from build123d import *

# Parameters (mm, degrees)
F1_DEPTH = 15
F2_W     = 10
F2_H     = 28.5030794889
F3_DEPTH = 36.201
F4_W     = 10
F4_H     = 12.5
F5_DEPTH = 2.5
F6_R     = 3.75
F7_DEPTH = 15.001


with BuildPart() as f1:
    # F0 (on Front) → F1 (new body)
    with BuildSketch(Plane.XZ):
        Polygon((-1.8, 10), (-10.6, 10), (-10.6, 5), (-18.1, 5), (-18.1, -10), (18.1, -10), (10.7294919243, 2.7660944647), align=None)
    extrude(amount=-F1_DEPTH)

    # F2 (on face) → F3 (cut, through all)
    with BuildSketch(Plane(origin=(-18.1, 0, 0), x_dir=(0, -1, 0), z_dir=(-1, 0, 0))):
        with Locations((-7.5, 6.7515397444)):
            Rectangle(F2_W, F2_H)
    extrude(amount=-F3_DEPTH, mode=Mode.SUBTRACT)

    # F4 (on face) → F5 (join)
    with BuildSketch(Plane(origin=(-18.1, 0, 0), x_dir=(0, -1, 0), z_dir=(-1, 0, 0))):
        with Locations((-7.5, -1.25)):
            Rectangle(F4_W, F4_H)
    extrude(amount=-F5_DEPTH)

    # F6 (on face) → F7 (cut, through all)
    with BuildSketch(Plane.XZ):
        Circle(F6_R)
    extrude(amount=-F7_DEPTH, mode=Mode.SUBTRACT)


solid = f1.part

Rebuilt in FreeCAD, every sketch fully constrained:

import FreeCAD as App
import Part
import Sketcher
Q = App.Units.Quantity

doc = App.newDocument("Part")
params = doc.addObject("Spreadsheet::Sheet", "Params")
for row, (alias, value) in enumerate([
    ("sketch1_height", "5 mm"),
    ("sketch1_height2", "15 mm"),
    ("sketch1_width", "8.8 mm"),
    ("sketch1_width2", "7.5 mm"),
    ("sketch1_width3", "36.2 mm"),
    ("pad1_length", "15 mm"),
    ("sketch2_width", "10 mm"),
    ("sketch3_width", "10 mm"),
    ("sketch3_height", "12.5 mm"),
    ("pad2_length", "2.5 mm"),
    ("sketch4_diameter", "7.5 mm"),
], start=1):
    params.set(f"A{row}", alias)
    params.set(f"B{row}", "=" + value)
    params.setAlias(f"B{row}", alias)

body = doc.addObject("PartDesign::Body", "Body")

# Sketch on XZ plane
sketch1 = body.newObject("Sketcher::SketchObject", "Sketch")
sketch1.AttachmentSupport = (doc.getObject("XZ_Plane"), [""])
sketch1.MapMode = "FlatFace"
sketch1.addGeometry(Part.LineSegment(App.Vector(-2, 10, 0), App.Vector(-11, 10, 0)), False)
sketch1.addGeometry(Part.LineSegment(App.Vector(-11, 10, 0), App.Vector(-11, 5, 0)), False)
sketch1.addGeometry(Part.LineSegment(App.Vector(-11, 5, 0), App.Vector(-18, 5, 0)), False)
sketch1.addGeometry(Part.LineSegment(App.Vector(-18, 5, 0), App.Vector(-18, -10, 0)), False)
sketch1.addGeometry(Part.LineSegment(App.Vector(-18, -10, 0), App.Vector(18, -10, 0)), False)
sketch1.addGeometry(Part.LineSegment(App.Vector(18, -10, 0), App.Vector(11, 3, 0)), False)
sketch1.addGeometry(Part.LineSegment(App.Vector(11, 3, 0), App.Vector(-2, 10, 0)), False)
sketch1.addConstraint(Sketcher.Constraint("Coincident", 0, 2, 1, 1))
sketch1.addConstraint(Sketcher.Constraint("Coincident", 1, 2, 2, 1))
sketch1.addConstraint(Sketcher.Constraint("Coincident", 2, 2, 3, 1))
sketch1.addConstraint(Sketcher.Constraint("Coincident", 3, 2, 4, 1))
sketch1.addConstraint(Sketcher.Constraint("Coincident", 4, 2, 5, 1))
sketch1.addConstraint(Sketcher.Constraint("Coincident", 5, 2, 6, 1))
sketch1.addConstraint(Sketcher.Constraint("Coincident", 6, 2, 0, 1))
sketch1.addConstraint(Sketcher.Constraint("Horizontal", 0))
sketch1.addConstraint(Sketcher.Constraint("Vertical", 1))
sketch1.addConstraint(Sketcher.Constraint("Horizontal", 2))
sketch1.addConstraint(Sketcher.Constraint("Vertical", 3))
sketch1.addConstraint(Sketcher.Constraint("Horizontal", 4))
sketch1.addConstraint(Sketcher.Constraint("DistanceY", 1, 2, 1, 1, Q("5 mm")))
sketch1.addConstraint(Sketcher.Constraint("DistanceY", 3, 2, 3, 1, Q("15 mm")))
sketch1.addConstraint(Sketcher.Constraint("Angle", 5, Q("120 deg")))
sketch1.addConstraint(Sketcher.Constraint("Angle", 6, Q("150 deg")))
sketch1.addConstraint(Sketcher.Constraint("DistanceX", 0, 2, 0, 1, Q("8.8 mm")))
sketch1.addConstraint(Sketcher.Constraint("DistanceX", 2, 2, 2, 1, Q("7.5 mm")))
sketch1.addConstraint(Sketcher.Constraint("DistanceX", 4, 1, 4, 2, Q("36.2 mm")))
sketch1.addConstraint(Sketcher.Constraint("DistanceY", -1, 1, 0, 2, Q("10 mm")))
sketch1.addConstraint(Sketcher.Constraint("DistanceX", 0, 2, -1, 1, Q("10.6 mm")))
sketch1.setExpression("Constraints[12]", "Params.sketch1_height")
sketch1.setExpression("Constraints[13]", "Params.sketch1_height2")
sketch1.setExpression("Constraints[16]", "Params.sketch1_width")
sketch1.setExpression("Constraints[17]", "Params.sketch1_width2")
sketch1.setExpression("Constraints[18]", "Params.sketch1_width3")
pad1 = body.newObject("PartDesign::Pad", "Pad")
pad1.Profile = sketch1
pad1.setExpression("Length", "Params.pad1_length")
pad1.Reversed = True

# Sketch on YZ plane
sketch2 = body.newObject("Sketcher::SketchObject", "Sketch001")
sketch2.AttachmentSupport = (doc.getObject("YZ_Plane"), [""])
sketch2.MapMode = "FlatFace"
sketch2.AttachmentOffset = App.Placement(App.Vector(0, 0, -18.1), App.Rotation())
sketch2.addGeometry(Part.LineSegment(App.Vector(12, 21, 0), App.Vector(12, -8, 0)), False)
sketch2.addGeometry(Part.LineSegment(App.Vector(12, -8, 0), App.Vector(2, -8, 0)), False)
sketch2.addGeometry(Part.LineSegment(App.Vector(2, -8, 0), App.Vector(2, 21, 0)), False)
sketch2.addGeometry(Part.LineSegment(App.Vector(2, 21, 0), App.Vector(12, 21, 0)), False)
sketch2.addConstraint(Sketcher.Constraint("Coincident", 0, 2, 1, 1))
sketch2.addConstraint(Sketcher.Constraint("Coincident", 1, 2, 2, 1))
sketch2.addConstraint(Sketcher.Constraint("Coincident", 2, 2, 3, 1))
sketch2.addConstraint(Sketcher.Constraint("Coincident", 3, 2, 0, 1))
sketch2.addConstraint(Sketcher.Constraint("Vertical", 0))
sketch2.addConstraint(Sketcher.Constraint("Horizontal", 1))
sketch2.addConstraint(Sketcher.Constraint("Vertical", 2))
sketch2.addConstraint(Sketcher.Constraint("Horizontal", 3))
sketch2.addConstraint(Sketcher.Constraint("DistanceX", 1, 2, 1, 1, Q("10 mm")))
sketch2.addConstraint(Sketcher.Constraint("DistanceX", -1, 1, 0, 2, Q("12.5 mm")))
sketch2.addConstraint(Sketcher.Constraint("DistanceY", 0, 2, -1, 1, Q("7.5 mm")))
sketch2.addConstraint(Sketcher.Constraint("DistanceY", 0, 2, 0, 1, Q("28.503079 mm")))
sketch2.setExpression("Constraints[8]", "Params.sketch2_width")
pocket1 = body.newObject("PartDesign::Pocket", "Pocket")
pocket1.Profile = sketch2
pocket1.Type = "ThroughAll"
pocket1.Reversed = True

# Sketch on YZ plane
sketch3 = body.newObject("Sketcher::SketchObject", "Sketch002")
sketch3.AttachmentSupport = (doc.getObject("YZ_Plane"), [""])
sketch3.MapMode = "FlatFace"
sketch3.AttachmentOffset = App.Placement(App.Vector(0, 0, -18.1), App.Rotation())
sketch3.addGeometry(Part.LineSegment(App.Vector(12, 5, 0), App.Vector(12, -8, 0)), False)
sketch3.addGeometry(Part.LineSegment(App.Vector(12, -8, 0), App.Vector(2, -8, 0)), False)
sketch3.addGeometry(Part.LineSegment(App.Vector(2, -8, 0), App.Vector(2, 5, 0)), False)
sketch3.addGeometry(Part.LineSegment(App.Vector(2, 5, 0), App.Vector(12, 5, 0)), False)
sketch3.addConstraint(Sketcher.Constraint("Coincident", 0, 2, 1, 1))
sketch3.addConstraint(Sketcher.Constraint("Coincident", 1, 2, 2, 1))
sketch3.addConstraint(Sketcher.Constraint("Coincident", 2, 2, 3, 1))
sketch3.addConstraint(Sketcher.Constraint("Coincident", 3, 2, 0, 1))
sketch3.addConstraint(Sketcher.Constraint("Vertical", 0))
sketch3.addConstraint(Sketcher.Constraint("Horizontal", 1))
sketch3.addConstraint(Sketcher.Constraint("Vertical", 2))
sketch3.addConstraint(Sketcher.Constraint("Horizontal", 3))
sketch3.addConstraint(Sketcher.Constraint("DistanceX", 1, 2, 1, 1, Q("10 mm")))
sketch3.addConstraint(Sketcher.Constraint("DistanceY", 0, 2, 0, 1, Q("12.5 mm")))
sketch3.addConstraint(Sketcher.Constraint("DistanceY", -1, 1, 2, 2, Q("5 mm")))
sketch3.addConstraint(Sketcher.Constraint("DistanceX", -1, 1, 0, 2, Q("12.5 mm")))
sketch3.setExpression("Constraints[8]", "Params.sketch3_width")
sketch3.setExpression("Constraints[9]", "Params.sketch3_height")
pad2 = body.newObject("PartDesign::Pad", "Pad001")
pad2.Profile = sketch3
pad2.setExpression("Length", "Params.pad2_length")

# Sketch on XZ plane
sketch4 = body.newObject("Sketcher::SketchObject", "Sketch003")
sketch4.AttachmentSupport = (doc.getObject("XZ_Plane"), [""])
sketch4.MapMode = "FlatFace"
sketch4.addGeometry(Part.Circle(App.Vector(0, 0, 0), App.Vector(0, 0, 1), 3.8), False)
sketch4.addConstraint(Sketcher.Constraint("Coincident", 0, 3, -1, 1))
sketch4.addConstraint(Sketcher.Constraint("Diameter", 0, Q("7.5 mm")))
sketch4.setExpression("Constraints[1]", "Params.sketch4_diameter")
pocket2 = body.newObject("PartDesign::Pocket", "Pocket001")
pocket2.Profile = sketch4
pocket2.Type = "ThroughAll"

doc.recompute()
